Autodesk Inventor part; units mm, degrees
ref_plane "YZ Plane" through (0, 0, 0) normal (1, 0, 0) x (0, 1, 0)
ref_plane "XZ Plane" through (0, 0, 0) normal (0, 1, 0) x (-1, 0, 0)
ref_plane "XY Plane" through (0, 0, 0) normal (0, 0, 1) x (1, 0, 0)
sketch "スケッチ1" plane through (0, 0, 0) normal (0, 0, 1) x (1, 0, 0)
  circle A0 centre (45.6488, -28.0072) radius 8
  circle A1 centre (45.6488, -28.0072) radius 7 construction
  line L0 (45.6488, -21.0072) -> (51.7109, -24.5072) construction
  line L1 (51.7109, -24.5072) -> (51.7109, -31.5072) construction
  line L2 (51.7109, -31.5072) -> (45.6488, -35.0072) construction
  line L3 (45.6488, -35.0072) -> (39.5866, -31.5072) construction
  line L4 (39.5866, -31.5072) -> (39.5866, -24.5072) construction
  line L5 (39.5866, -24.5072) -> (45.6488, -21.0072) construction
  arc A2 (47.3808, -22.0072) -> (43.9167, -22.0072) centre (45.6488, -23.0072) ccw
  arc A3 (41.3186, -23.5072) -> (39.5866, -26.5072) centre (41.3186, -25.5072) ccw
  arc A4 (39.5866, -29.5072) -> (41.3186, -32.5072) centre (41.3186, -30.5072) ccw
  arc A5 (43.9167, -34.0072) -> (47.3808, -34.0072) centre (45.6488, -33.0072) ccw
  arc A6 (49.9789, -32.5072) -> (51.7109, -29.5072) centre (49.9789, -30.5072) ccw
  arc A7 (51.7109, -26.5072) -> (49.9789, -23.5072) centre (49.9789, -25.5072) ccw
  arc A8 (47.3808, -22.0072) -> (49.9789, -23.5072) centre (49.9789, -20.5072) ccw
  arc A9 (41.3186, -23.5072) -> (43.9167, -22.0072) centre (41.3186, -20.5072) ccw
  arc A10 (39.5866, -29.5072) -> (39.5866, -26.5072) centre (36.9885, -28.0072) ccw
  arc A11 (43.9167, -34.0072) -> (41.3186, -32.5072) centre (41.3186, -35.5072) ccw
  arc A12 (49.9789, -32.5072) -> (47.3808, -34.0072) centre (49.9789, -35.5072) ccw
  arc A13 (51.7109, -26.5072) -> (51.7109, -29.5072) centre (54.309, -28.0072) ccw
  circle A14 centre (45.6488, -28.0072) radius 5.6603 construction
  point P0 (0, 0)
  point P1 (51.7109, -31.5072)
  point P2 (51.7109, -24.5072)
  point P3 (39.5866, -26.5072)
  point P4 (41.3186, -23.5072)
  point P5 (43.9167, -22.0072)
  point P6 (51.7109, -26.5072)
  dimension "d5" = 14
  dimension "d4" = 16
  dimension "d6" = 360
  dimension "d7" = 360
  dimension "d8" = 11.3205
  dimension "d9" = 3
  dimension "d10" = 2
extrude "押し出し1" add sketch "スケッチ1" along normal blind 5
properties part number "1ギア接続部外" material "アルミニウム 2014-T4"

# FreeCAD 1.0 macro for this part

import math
import FreeCAD as App
import Part
import Sketcher
from FreeCAD import Vector
Q = App.Units.Quantity

doc = App.newDocument("Part")
params = doc.addObject("Spreadsheet::Sheet", "Params")
for row, (alias, value) in enumerate([
    ("sketch1_diameter", "16 mm"),
    ("sketch1_radius", "2 mm"),
    ("sketch1_radius2", "3 mm"),
    ("pad1_length", "5 mm"),
], start=1):
    params.set(f"A{row}", alias)
    params.set(f"B{row}", "=" + value)
    params.setAlias(f"B{row}", alias)

body = doc.addObject("PartDesign::Body", "Body")

sketch1 = body.newObject("Sketcher::SketchObject", "Sketch")
sketch1.AttachmentSupport = (doc.getObject("XY_Plane"), [""])
sketch1.MapMode = "FlatFace"
sketch1.addGeometry([
    Part.Circle(Vector(45.6488, -28.0072, 0), Vector(0, 0, 1), 8),
    Part.ArcOfCircle(Part.Circle(Vector(45.6488, -23.0072, 0), Vector(0, 0, 1), 1.999956), math.radians(30.000728), math.radians(150.000705)),
    Part.ArcOfCircle(Part.Circle(Vector(49.9789, -20.5072, 0), Vector(0, 0, 1), 3.000021), math.radians(-150.000227), math.radians(-90)),
    Part.ArcOfCircle(Part.Circle(Vector(49.9789, -25.5072, 0), Vector(0, 0, 1), 1.999956), math.radians(-30.000728), math.radians(90)),
    Part.ArcOfCircle(Part.Circle(Vector(54.309, -28.0072, 0), Vector(0, 0, 1), 3.000021), math.radians(150.000227), math.radians(209.999773)),
    Part.ArcOfCircle(Part.Circle(Vector(49.9789, -30.5072, 0), Vector(0, 0, 1), 2), math.radians(-90), math.radians(30.000728)),
    Part.ArcOfCircle(Part.Circle(Vector(49.9789, -35.5072, 0), Vector(0, 0, 1), 3), math.radians(90), math.radians(150.000227)),
    Part.ArcOfCircle(Part.Circle(Vector(45.6488, -33.0072, 0), Vector(0, 0, 1), 2.000043), math.radians(-150.000705), math.radians(-30.000728)),
    Part.ArcOfCircle(Part.Circle(Vector(41.3186, -35.5072, 0), Vector(0, 0, 1), 3.000021), math.radians(29.999773), math.radians(90)),
    Part.ArcOfCircle(Part.Circle(Vector(41.3186, -30.5072, 0), Vector(0, 0, 1), 1.999956), math.radians(149.999272), math.radians(270)),
    Part.ArcOfCircle(Part.Circle(Vector(36.9885, -28.0072, 0), Vector(0, 0, 1), 3.000021), math.radians(-29.999773), math.radians(29.999773)),
    Part.ArcOfCircle(Part.Circle(Vector(41.3186, -25.5072, 0), Vector(0, 0, 1), 2), math.radians(90), math.radians(210.000728)),
    Part.ArcOfCircle(Part.Circle(Vector(41.3186, -20.5072, 0), Vector(0, 0, 1), 3), math.radians(-90), math.radians(-29.999773)),
], False)
sketch1.addConstraint([
    Sketcher.Constraint("Tangent", 1, 1, 2, 1),
    Sketcher.Constraint("Tangent", 2, 2, 3, 2),
    Sketcher.Constraint("Tangent", 3, 1, 4, 1),
    Sketcher.Constraint("Tangent", 4, 2, 5, 2),
    Sketcher.Constraint("Tangent", 5, 1, 6, 1),
    Sketcher.Constraint("Tangent", 6, 2, 7, 2),
    Sketcher.Constraint("Tangent", 7, 1, 8, 1),
    Sketcher.Constraint("Tangent", 8, 2, 9, 2),
    Sketcher.Constraint("Tangent", 9, 1, 10, 1),
    Sketcher.Constraint("Tangent", 10, 2, 11, 2),
    Sketcher.Constraint("Tangent", 11, 1, 12, 1),
    Sketcher.Constraint("Tangent", 12, 2, 1, 2),
    Sketcher.Constraint("Equal", 1, 3),
    Sketcher.Constraint("Equal", 2, 4),
    Sketcher.Constraint("Equal", 3, 5),
    Sketcher.Constraint("Equal", 4, 6),
    Sketcher.Constraint("Equal", 5, 7),
    Sketcher.Constraint("Equal", 6, 8),
    Sketcher.Constraint("Equal", 7, 9),
    Sketcher.Constraint("Equal", 8, 10),
    Sketcher.Constraint("Equal", 9, 11),
    Sketcher.Constraint("Equal", 10, 12),
    Sketcher.Constraint("Horizontal", 0, 3, 4, 3),
    Sketcher.Constraint("Horizontal", 6, 3, 8, 3),
    Sketcher.Constraint("Horizontal", 4, 3, 10, 3),
    Sketcher.Constraint("Horizontal", 3, 3, 11, 3),
    Sketcher.Constraint("Vertical", 0, 3, 1, 3),
    Sketcher.Constraint("Vertical", 2, 3, 3, 3),
    Sketcher.Constraint("Vertical", 3, 3, 5, 3),
    Sketcher.Constraint("Vertical", 5, 3, 6, 3),
    Sketcher.Constraint("Vertical", 1, 3, 7, 3),
    Sketcher.Constraint("Vertical", 8, 3, 9, 3),
    Sketcher.Constraint("Diameter", 0, Q("16 mm")),
    Sketcher.Constraint("Radius", 1, Q("2 mm")),
    Sketcher.Constraint("Radius", 2, Q("3 mm")),
    Sketcher.Constraint("DistanceY", 3, 1, 2, 2, Q("3 mm")),
    Sketcher.Constraint("DistanceY", 0, 3, 1, 3, Q("5 mm")),
    Sketcher.Constraint("DistanceX", -1, 1, 2, 3, Q("49.979 mm")),
    Sketcher.Constraint("DistanceY", 0, 3, -1, 1, Q("28.0072 mm")),
])
sketch1.setExpression("Constraints[32]", "Params.sketch1_diameter")
sketch1.setExpression("Constraints[33]", "Params.sketch1_radius")
sketch1.setExpression("Constraints[34]", "Params.sketch1_radius2")
pad1 = body.newObject("PartDesign::Pad", "Pad")
pad1.Profile = sketch1
pad1.setExpression("Length", "Params.pad1_length")

doc.recompute()
